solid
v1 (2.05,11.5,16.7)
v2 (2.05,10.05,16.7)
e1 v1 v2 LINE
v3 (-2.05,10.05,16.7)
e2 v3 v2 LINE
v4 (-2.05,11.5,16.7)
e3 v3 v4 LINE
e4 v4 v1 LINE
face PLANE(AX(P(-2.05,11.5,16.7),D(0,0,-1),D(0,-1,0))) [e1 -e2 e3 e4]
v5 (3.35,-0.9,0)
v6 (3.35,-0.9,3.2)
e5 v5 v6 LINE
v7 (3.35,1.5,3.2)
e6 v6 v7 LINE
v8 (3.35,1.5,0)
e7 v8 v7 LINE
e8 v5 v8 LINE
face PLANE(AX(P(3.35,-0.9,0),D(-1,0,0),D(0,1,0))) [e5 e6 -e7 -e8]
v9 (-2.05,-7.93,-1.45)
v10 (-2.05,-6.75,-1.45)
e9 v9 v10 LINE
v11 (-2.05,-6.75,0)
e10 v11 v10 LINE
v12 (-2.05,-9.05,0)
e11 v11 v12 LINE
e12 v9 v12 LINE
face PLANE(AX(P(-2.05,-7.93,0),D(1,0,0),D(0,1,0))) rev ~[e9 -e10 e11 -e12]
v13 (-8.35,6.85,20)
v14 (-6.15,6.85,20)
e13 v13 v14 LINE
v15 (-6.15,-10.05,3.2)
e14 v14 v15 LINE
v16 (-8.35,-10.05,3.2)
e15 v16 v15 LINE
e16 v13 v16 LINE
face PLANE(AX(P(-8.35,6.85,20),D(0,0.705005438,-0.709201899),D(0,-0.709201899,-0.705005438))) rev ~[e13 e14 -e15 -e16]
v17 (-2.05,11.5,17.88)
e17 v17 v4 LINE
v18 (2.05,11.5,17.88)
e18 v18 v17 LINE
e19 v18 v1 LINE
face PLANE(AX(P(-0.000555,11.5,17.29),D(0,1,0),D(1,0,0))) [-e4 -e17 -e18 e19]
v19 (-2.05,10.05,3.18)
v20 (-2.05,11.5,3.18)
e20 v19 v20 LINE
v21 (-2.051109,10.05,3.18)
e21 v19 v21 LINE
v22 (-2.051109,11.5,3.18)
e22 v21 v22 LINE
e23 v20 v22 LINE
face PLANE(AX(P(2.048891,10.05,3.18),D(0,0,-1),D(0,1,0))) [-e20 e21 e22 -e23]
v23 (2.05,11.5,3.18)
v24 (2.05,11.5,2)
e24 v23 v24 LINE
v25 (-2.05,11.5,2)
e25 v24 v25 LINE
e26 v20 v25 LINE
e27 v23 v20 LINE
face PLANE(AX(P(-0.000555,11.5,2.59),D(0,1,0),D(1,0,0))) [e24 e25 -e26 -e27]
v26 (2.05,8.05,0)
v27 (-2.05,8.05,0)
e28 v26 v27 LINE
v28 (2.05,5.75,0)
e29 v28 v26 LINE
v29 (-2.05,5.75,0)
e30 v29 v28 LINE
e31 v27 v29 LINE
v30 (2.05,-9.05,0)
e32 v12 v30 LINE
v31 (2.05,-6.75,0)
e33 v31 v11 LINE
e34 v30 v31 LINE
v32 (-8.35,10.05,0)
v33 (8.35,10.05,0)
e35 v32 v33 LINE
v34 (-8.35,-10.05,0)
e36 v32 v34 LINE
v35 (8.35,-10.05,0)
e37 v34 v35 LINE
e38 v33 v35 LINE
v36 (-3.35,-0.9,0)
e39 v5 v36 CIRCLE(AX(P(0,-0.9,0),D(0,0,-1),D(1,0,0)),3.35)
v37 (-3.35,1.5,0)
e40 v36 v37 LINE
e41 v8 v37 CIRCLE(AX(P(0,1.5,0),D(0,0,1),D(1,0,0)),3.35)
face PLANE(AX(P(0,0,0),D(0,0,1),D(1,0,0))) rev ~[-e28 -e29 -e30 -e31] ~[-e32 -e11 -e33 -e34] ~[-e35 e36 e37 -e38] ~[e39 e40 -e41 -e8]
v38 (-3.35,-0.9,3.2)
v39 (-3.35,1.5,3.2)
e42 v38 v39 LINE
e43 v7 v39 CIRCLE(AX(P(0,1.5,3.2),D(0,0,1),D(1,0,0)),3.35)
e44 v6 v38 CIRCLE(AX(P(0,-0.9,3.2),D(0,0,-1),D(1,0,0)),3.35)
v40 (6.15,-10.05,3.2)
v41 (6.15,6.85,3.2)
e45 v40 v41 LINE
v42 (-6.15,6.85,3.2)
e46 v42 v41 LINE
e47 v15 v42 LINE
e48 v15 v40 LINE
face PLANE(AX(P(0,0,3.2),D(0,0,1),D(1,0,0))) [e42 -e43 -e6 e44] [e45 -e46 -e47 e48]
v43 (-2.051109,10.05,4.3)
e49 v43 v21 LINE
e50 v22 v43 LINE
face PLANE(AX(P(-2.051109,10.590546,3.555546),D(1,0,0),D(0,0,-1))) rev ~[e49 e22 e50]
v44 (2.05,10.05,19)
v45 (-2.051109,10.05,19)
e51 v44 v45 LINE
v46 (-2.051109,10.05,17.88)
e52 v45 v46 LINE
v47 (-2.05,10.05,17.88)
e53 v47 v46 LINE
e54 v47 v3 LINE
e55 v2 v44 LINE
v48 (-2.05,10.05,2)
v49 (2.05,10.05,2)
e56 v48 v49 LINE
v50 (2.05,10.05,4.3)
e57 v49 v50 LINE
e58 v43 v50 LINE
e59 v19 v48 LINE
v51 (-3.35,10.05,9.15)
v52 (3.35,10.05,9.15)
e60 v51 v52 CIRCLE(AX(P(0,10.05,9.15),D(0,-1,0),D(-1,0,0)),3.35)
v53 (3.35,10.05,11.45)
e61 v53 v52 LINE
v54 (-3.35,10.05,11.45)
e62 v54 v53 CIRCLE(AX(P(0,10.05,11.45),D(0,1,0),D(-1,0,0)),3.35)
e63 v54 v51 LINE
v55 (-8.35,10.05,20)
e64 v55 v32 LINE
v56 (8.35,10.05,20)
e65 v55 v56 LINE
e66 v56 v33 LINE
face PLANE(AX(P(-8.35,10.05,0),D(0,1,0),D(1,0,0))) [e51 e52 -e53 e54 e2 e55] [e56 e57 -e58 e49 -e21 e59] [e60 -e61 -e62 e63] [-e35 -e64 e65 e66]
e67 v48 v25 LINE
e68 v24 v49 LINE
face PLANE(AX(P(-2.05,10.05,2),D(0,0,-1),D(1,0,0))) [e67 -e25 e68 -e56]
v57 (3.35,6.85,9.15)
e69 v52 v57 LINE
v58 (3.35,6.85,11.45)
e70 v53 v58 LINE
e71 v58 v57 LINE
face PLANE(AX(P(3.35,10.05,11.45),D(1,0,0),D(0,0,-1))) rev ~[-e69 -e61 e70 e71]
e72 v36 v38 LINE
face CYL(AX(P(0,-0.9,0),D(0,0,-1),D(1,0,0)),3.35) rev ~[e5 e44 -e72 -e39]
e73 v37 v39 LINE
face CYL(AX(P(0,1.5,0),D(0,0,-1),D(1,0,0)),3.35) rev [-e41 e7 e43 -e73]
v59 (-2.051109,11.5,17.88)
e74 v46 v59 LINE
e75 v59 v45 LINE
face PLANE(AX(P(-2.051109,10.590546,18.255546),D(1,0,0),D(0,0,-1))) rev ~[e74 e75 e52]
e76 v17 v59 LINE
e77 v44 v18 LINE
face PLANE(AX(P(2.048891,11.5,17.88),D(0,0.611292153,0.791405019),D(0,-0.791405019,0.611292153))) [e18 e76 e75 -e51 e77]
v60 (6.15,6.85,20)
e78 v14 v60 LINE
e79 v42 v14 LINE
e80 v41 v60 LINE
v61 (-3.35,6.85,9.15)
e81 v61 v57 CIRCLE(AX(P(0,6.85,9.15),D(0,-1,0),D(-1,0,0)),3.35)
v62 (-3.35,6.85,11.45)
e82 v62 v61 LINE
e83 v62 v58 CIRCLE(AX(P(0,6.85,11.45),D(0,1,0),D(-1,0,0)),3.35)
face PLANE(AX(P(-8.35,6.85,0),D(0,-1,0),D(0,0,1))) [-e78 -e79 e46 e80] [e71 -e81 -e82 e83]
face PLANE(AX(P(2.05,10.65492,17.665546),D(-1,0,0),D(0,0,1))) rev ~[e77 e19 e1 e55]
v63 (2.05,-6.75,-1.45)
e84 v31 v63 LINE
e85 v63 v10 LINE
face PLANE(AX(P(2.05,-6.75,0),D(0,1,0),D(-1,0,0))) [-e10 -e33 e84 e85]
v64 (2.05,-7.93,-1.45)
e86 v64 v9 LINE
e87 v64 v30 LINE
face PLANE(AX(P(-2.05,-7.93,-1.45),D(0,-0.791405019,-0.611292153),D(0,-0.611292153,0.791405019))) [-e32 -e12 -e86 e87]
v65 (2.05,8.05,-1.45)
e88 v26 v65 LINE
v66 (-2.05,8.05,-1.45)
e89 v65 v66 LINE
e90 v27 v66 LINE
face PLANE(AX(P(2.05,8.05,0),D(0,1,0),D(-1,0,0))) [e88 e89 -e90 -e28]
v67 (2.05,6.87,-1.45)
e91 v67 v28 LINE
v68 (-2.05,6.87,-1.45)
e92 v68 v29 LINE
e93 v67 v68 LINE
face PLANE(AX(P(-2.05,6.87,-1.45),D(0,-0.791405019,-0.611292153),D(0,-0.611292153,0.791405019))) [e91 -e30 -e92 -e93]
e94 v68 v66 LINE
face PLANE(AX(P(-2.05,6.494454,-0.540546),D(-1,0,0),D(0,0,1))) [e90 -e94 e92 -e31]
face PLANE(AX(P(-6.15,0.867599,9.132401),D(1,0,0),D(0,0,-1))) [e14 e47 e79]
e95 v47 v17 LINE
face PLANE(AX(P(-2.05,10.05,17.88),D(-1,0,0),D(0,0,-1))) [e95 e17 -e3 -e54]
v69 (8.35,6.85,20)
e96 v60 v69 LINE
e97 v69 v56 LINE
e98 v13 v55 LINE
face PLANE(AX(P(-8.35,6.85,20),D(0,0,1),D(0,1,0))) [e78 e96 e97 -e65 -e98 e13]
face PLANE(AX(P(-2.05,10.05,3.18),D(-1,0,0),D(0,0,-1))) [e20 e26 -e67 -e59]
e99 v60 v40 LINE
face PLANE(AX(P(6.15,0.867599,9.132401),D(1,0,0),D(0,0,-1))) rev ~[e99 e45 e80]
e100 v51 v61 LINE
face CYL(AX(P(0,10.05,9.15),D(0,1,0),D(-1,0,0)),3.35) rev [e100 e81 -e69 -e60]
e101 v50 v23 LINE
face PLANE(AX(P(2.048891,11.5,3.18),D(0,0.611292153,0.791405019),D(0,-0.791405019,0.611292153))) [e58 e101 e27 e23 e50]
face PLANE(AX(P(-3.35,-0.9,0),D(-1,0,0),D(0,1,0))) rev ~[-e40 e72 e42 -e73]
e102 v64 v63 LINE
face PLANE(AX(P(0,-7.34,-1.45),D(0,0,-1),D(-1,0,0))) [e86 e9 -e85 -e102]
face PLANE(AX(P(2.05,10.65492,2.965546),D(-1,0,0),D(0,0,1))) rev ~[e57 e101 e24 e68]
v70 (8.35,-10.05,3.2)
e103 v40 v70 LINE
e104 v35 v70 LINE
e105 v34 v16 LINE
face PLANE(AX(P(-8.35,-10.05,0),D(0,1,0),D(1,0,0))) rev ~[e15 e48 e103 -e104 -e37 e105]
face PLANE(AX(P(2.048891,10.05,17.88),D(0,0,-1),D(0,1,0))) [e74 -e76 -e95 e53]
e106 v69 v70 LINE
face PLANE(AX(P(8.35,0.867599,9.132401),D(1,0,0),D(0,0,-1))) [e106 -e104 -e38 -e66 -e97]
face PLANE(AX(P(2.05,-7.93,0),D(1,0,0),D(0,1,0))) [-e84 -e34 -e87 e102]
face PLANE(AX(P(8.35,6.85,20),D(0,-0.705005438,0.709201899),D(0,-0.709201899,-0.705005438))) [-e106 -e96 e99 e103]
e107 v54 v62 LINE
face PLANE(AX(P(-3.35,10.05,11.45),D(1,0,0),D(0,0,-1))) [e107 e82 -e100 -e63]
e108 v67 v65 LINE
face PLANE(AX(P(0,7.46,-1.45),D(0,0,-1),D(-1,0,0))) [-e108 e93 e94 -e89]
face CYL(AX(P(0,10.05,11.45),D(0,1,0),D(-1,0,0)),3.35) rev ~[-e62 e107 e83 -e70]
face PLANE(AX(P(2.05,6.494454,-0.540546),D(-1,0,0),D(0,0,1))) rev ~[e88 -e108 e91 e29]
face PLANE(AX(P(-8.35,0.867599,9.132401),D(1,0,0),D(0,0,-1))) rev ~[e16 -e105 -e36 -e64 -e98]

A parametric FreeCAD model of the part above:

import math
import FreeCAD as App
import Part
import Sketcher

V = App.Vector
Q = App.Units.Quantity


def add_polygon(sketch, points):
    """Adds a closed chain of lines whose ends are joined by coincident constraints."""
    first, n = sketch.GeometryCount, len(points)
    for a, b in zip(points, points[1:] + points[:1]):
        sketch.addGeometry(Part.LineSegment(App.Vector(*a, 0), App.Vector(*b, 0)), False)
    for i in range(n):
        sketch.addConstraint(Sketcher.Constraint("Coincident", first + i, 2, first + (i + 1) % n, 1))

doc = App.newDocument("Part")
body = doc.addObject("PartDesign::Body", "Body")

# Sketch on XY plane
sketch1 = body.newObject("Sketcher::SketchObject", "Sketch")
sketch1.AttachmentSupport = (doc.getObject("XY_Plane"), [""])
sketch1.MapMode = "FlatFace"
add_polygon(sketch1, [(-8, 10), (-8, -10), (8, -10), (8, 10)])  # lines 0-3
sketch1.addConstraint([
    Sketcher.Constraint("Vertical", 0),
    Sketcher.Constraint("Horizontal", 1),
    Sketcher.Constraint("Vertical", 2),
    Sketcher.Constraint("Horizontal", 3),
    Sketcher.Constraint("Symmetric", 0, 2, 2, 2, -1, 1),
    Sketcher.Constraint("DistanceX", 1, 1, 1, 2, Q("16.7 mm")),
    Sketcher.Constraint("DistanceY", 0, 2, 0, 1, Q("20.1 mm")),
])
pad1 = body.newObject("PartDesign::Pad", "Pad")
pad1.Profile = sketch1
pad1.Length = 3.2

# Sketch on YZ plane
sketch2 = body.newObject("Sketcher::SketchObject", "Sketch001")
sketch2.AttachmentSupport = (doc.getObject("YZ_Plane"), [""])
sketch2.MapMode = "FlatFace"
sketch2.AttachmentOffset = App.Placement(V(0, 0, -8.35), App.Rotation())
add_polygon(sketch2, [(10.1, 0), (6.8, 0), (6.8, 20), (10.1, 20)])  # lines 0-3
sketch2.addConstraint([
    Sketcher.Constraint("Horizontal", 0),
    Sketcher.Constraint("Vertical", 1),
    Sketcher.Constraint("Horizontal", 2),
    Sketcher.Constraint("Vertical", 3),
    Sketcher.Constraint("PointOnObject", 0, 2, -1),
    Sketcher.Constraint("DistanceY", 1, 1, 1, 2, Q("20 mm")),
    Sketcher.Constraint("DistanceX", 0, 2, 0, 1, Q("3.2 mm")),
    Sketcher.Constraint("DistanceX", -1, 1, 0, 2, Q("6.85 mm")),
])
pad2 = body.newObject("PartDesign::Pad", "Pad001")
pad2.Profile = sketch2
pad2.Length = 16.7

# Sketch on YZ plane
sketch3 = body.newObject("Sketcher::SketchObject", "Sketch002")
sketch3.AttachmentSupport = (doc.getObject("YZ_Plane"), [""])
sketch3.MapMode = "FlatFace"
sketch3.AttachmentOffset = App.Placement(V(0, 0, -8.35), App.Rotation())
add_polygon(sketch3, [(-10, 3), (7, 20), (7, 3)])  # lines 0-2
sketch3.addConstraint([
    Sketcher.Constraint("Vertical", 1),
    Sketcher.Constraint("Horizontal", 2),
    Sketcher.Constraint("DistanceX", 2, 2, 2, 1, Q("16.9 mm")),
    Sketcher.Constraint("DistanceY", 1, 2, 1, 1, Q("16.8 mm")),
    Sketcher.Constraint("DistanceY", -1, 1, 0, 2, Q("20 mm")),
    Sketcher.Constraint("DistanceX", -1, 1, 0, 2, Q("6.85 mm")),
])
pad3 = body.newObject("PartDesign::Pad", "Pad002")
pad3.Profile = sketch3
pad3.Length = 2.2

# Sketch on YZ plane
sketch4 = body.newObject("Sketcher::SketchObject", "Sketch003")
sketch4.AttachmentSupport = (doc.getObject("YZ_Plane"), [""])
sketch4.MapMode = "FlatFace"
sketch4.AttachmentOffset = App.Placement(V(0, 0, 8.35), App.Rotation())
add_polygon(sketch4, [(7, 20), (-10, 3), (7, 3)])  # lines 0-2
sketch4.addConstraint([
    Sketcher.Constraint("Horizontal", 1),
    Sketcher.Constraint("Vertical", 2),
    Sketcher.Constraint("DistanceX", 1, 1, 1, 2, Q("16.9 mm")),
    Sketcher.Constraint("DistanceY", 2, 1, 2, 2, Q("16.8 mm")),
    Sketcher.Constraint("DistanceY", -1, 1, 2, 2, Q("20 mm")),
    Sketcher.Constraint("DistanceX", 0, 2, -1, 1, Q("10.05 mm")),
])
pad4 = body.newObject("PartDesign::Pad", "Pad003")
pad4.Profile = sketch4
pad4.Length = 2.2
pad4.Reversed = True

# Sketch on XY plane
sketch5 = body.newObject("Sketcher::SketchObject", "Sketch004")
sketch5.AttachmentSupport = (doc.getObject("XY_Plane"), [""])
sketch5.MapMode = "FlatFace"
sketch5.addGeometry([
    Part.ArcOfCircle(Part.Circle(V(0, 1.5, 0), V(0, 0, 1), 3.4), math.radians(0), math.radians(180)),
    Part.LineSegment(V(3.4, 1.5, 0), V(3.4, -0.9, 0)),
    Part.ArcOfCircle(Part.Circle(V(0, -0.9, 0), V(0, 0, 1), 3.4), math.radians(180), math.radians(360)),
    Part.LineSegment(V(-3.4, -0.9, 0), V(-3.4, 1.5, 0)),
], False)
sketch5.addConstraint([
    Sketcher.Constraint("Tangent", 0, 1, 1, 1),
    Sketcher.Constraint("Tangent", 1, 2, 2, 2),
    Sketcher.Constraint("Tangent", 2, 1, 3, 1),
    Sketcher.Constraint("Tangent", 3, 2, 0, 2),
    Sketcher.Constraint("Vertical", 1),
    Sketcher.Constraint("Vertical", 3),
    Sketcher.Constraint("PointOnObject", 0, 3, -2),
    Sketcher.Constraint("Radius", 0, Q("3.35 mm")),
    Sketcher.Constraint("DistanceY", 1, 2, 1, 1, Q("2.4 mm")),
    Sketcher.Constraint("DistanceY", -1, 1, 0, 3, Q("1.5 mm")),
])
pocket1 = body.newObject("PartDesign::Pocket", "Pocket")
pocket1.Profile = sketch5
pocket1.Length = 3.2
pocket1.Reversed = True

# Sketch on XZ plane
sketch6 = body.newObject("Sketcher::SketchObject", "Sketch005")
sketch6.AttachmentSupport = (doc.getObject("XZ_Plane"), [""])
sketch6.MapMode = "FlatFace"
sketch6.AttachmentOffset = App.Placement(V(0, 0, -10.05), App.Rotation())
sketch6.addGeometry([
    Part.ArcOfCircle(Part.Circle(V(0, 9.2, 0), V(0, 0, 1), 3.4), math.radians(180), math.radians(360)),
    Part.LineSegment(V(-3.4, 9.2, 0), V(-3.4, 11.4, 0)),
    Part.ArcOfCircle(Part.Circle(V(0, 11.4, 0), V(0, 0, 1), 3.4), math.radians(0), math.radians(180)),
    Part.LineSegment(V(3.4, 11.4, 0), V(3.4, 9.2, 0)),
], False)
sketch6.addConstraint([
    Sketcher.Constraint("Tangent", 0, 1, 1, 1),
    Sketcher.Constraint("Tangent", 1, 2, 2, 2),
    Sketcher.Constraint("Tangent", 2, 1, 3, 1),
    Sketcher.Constraint("Tangent", 3, 2, 0, 2),
    Sketcher.Constraint("Vertical", 1),
    Sketcher.Constraint("Vertical", 3),
    Sketcher.Constraint("PointOnObject", 0, 3, -2),
    Sketcher.Constraint("Radius", 0, Q("3.35 mm")),
    Sketcher.Constraint("DistanceY", 1, 1, 1, 2, Q("2.3 mm")),
    Sketcher.Constraint("DistanceY", -1, 1, 0, 3, Q("9.15 mm")),
])
pocket2 = body.newObject("PartDesign::Pocket", "Pocket001")
pocket2.Profile = sketch6
pocket2.Length = 3.2
pocket2.Reversed = True

# Sketch on XY plane
sketch7 = body.newObject("Sketcher::SketchObject", "Sketch006")
sketch7.AttachmentSupport = (doc.getObject("XY_Plane"), [""])
sketch7.MapMode = "FlatFace"
add_polygon(sketch7, [(2, 8.1), (2, 6.9), (-2, 6.9), (-2, 8.1)])  # lines 0-3
add_polygon(sketch7, [(2, -6.8), (2, -7.9), (-2, -7.9), (-2, -6.8)])  # lines 4-7
sketch7.addConstraint([
    Sketcher.Constraint("Vertical", 0),
    Sketcher.Constraint("Horizontal", 1),
    Sketcher.Constraint("Vertical", 2),
    Sketcher.Constraint("Horizontal", 3),
    Sketcher.Constraint("Vertical", 4),
    Sketcher.Constraint("Horizontal", 5),
    Sketcher.Constraint("Vertical", 6),
    Sketcher.Constraint("Horizontal", 7),
    Sketcher.Constraint("Vertical", 3, 2, 4, 2),
    Sketcher.Constraint("Vertical", 2, 2, 5, 2),
    Sketcher.Constraint("Equal", 2, 4),
    Sketcher.Constraint("DistanceX", 1, 2, 1, 1, Q("4.1 mm")),
    Sketcher.Constraint("DistanceY", 0, 2, 0, 1, Q("1.18 mm")),
    Sketcher.Constraint("DistanceY", 4, 2, 0, 2, Q("14.8 mm")),
    Sketcher.Constraint("DistanceX", -1, 1, 0, 2, Q("2.05 mm")),
    Sketcher.Constraint("DistanceY", -1, 1, 0, 2, Q("6.87 mm")),
])
pad5 = body.newObject("PartDesign::Pad", "Pad004")
pad5.Profile = sketch7
pad5.Length = 1.45
pad5.Reversed = True

# Sketch on YZ plane
sketch8 = body.newObject("Sketcher::SketchObject", "Sketch007")
sketch8.AttachmentSupport = (doc.getObject("YZ_Plane"), [""])
sketch8.MapMode = "FlatFace"
sketch8.AttachmentOffset = App.Placement(V(0, 0, -2.05), App.Rotation())
add_polygon(sketch8, [(6.9, -1.4), (5.8, 0), (6.9, 0)])  # lines 0-2
add_polygon(sketch8, [(-7.9, -1.4), (-9.1, 0), (-7.9, 0)])  # lines 3-5
sketch8.addConstraint([
    Sketcher.Constraint("Horizontal", 1),
    Sketcher.Constraint("Vertical", 2),
    Sketcher.Constraint("Horizontal", 4),
    Sketcher.Constraint("Vertical", 5),
    Sketcher.Constraint("PointOnObject", 0, 2, -1),
    Sketcher.Constraint("PointOnObject", 3, 2, -1),
    Sketcher.Constraint("Parallel", 0, 3),
    Sketcher.Constraint("Horizontal", 2, 2, 5, 2),
    Sketcher.Constraint("DistanceX", 1, 1, 1, 2, Q("1.12 mm")),
    Sketcher.Constraint("DistanceY", 2, 2, 2, 1, Q("1.45 mm")),
    Sketcher.Constraint("DistanceX", 3, 2, 0, 2, Q("14.8 mm")),
    Sketcher.Constraint("DistanceX", -1, 1, 0, 2, Q("5.75 mm")),
])
pad6 = body.newObject("PartDesign::Pad", "Pad005")
pad6.Profile = sketch8
pad6.Length = 4.1

# Sketch on XZ plane
sketch9 = body.newObject("Sketcher::SketchObject", "Sketch008")
sketch9.AttachmentSupport = (doc.getObject("XZ_Plane"), [""])
sketch9.MapMode = "FlatFace"
sketch9.AttachmentOffset = App.Placement(V(0, 0, -10.05), App.Rotation())
add_polygon(sketch9, [(-2, 2), (-2, 3.2), (2, 3.2), (2, 2)])  # lines 0-3
add_polygon(sketch9, [(-2, 16.7), (-2, 17.9), (2, 17.9), (2, 16.7)])  # lines 4-7
sketch9.addConstraint([
    Sketcher.Constraint("Vertical", 0),
    Sketcher.Constraint("Horizontal", 1),
    Sketcher.Constraint("Vertical", 2),
    Sketcher.Constraint("Horizontal", 3),
    Sketcher.Constraint("Vertical", 4),
    Sketcher.Constraint("Horizontal", 5),
    Sketcher.Constraint("Vertical", 6),
    Sketcher.Constraint("Horizontal", 7),
    Sketcher.Constraint("Vertical", 3, 2, 4, 2),
    Sketcher.Constraint("Vertical", 2, 2, 5, 2),
    Sketcher.Constraint("Equal", 2, 4),
    Sketcher.Constraint("DistanceY", -1, 1, 2, 2, Q("2 mm")),
    Sketcher.Constraint("DistanceY", 0, 1, 0, 2, Q("1.18 mm")),
    Sketcher.Constraint("DistanceY", -1, 1, 6, 2, Q("16.7 mm")),
    Sketcher.Constraint("DistanceX", 0, 2, -1, 1, Q("2.05 mm")),
    Sketcher.Constraint("DistanceX", 1, 1, 1, 2, Q("4.098891 mm")),
])
pad7 = body.newObject("PartDesign::Pad", "Pad006")
pad7.Profile = sketch9
pad7.Length = 1.45
pad7.Reversed = True

# Sketch on YZ plane
sketch10 = body.newObject("Sketcher::SketchObject", "Sketch009")
sketch10.AttachmentSupport = (doc.getObject("YZ_Plane"), [""])
sketch10.MapMode = "FlatFace"
sketch10.AttachmentOffset = App.Placement(V(0, 0, 2.048891), App.Rotation())
add_polygon(sketch10, [(11.5, 17.9), (10.1, 19), (10.1, 17.9)])  # lines 0-2
add_polygon(sketch10, [(11.5, 3.2), (10.1, 4.3), (10.1, 3.2)])  # lines 3-5
sketch10.addConstraint([
    Sketcher.Constraint("Vertical", 1),
    Sketcher.Constraint("Horizontal", 2),
    Sketcher.Constraint("Vertical", 4),
    Sketcher.Constraint("Horizontal", 5),
    Sketcher.Constraint("Parallel", 0, 3),
    Sketcher.Constraint("Vertical", 1, 2, 3, 2),
    Sketcher.Constraint("Vertical", 2, 2, 5, 2),
    Sketcher.Constraint("DistanceY", -1, 1, 0, 2, Q("19 mm")),
    Sketcher.Constraint("DistanceX", 2, 1, 2, 2, Q("1.45 mm")),
    Sketcher.Constraint("DistanceY", 1, 2, 1, 1, Q("1.12 mm")),
    Sketcher.Constraint("DistanceX", -1, 1, 2, 2, Q("11.5 mm")),
    Sketcher.Constraint("DistanceY", -1, 1, 3, 2, Q("4.3 mm")),
])
pad8 = body.newObject("PartDesign::Pad", "Pad007")
pad8.Profile = sketch10
pad8.Length = 4.1
pad8.Reversed = True

# Sketch on YZ plane
sketch11 = body.newObject("Sketcher::SketchObject", "Sketch010")
sketch11.AttachmentSupport = (doc.getObject("YZ_Plane"), [""])
sketch11.MapMode = "FlatFace"
sketch11.AttachmentOffset = App.Placement(V(0, 0, -2.05), App.Rotation())
add_polygon(sketch11, [(11.5, 2), (10.1, 2), (10.1, 4.3), (11.5, 3.2)])  # lines 0-3
add_polygon(sketch11, [(11.5, 16.7), (10.1, 16.7), (10.1, 19), (11.5, 17.9)])  # lines 4-7
sketch11.addConstraint([
    Sketcher.Constraint("Horizontal", 0),
    Sketcher.Constraint("Vertical", 1),
    Sketcher.Constraint("Vertical", 3),
    Sketcher.Constraint("Horizontal", 4),
    Sketcher.Constraint("Vertical", 5),
    Sketcher.Constraint("Vertical", 7),
    Sketcher.Constraint("Parallel", 2, 6),
    Sketcher.Constraint("Vertical", 1, 2, 4, 2),
    Sketcher.Constraint("Vertical", 3, 2, 6, 2),
    Sketcher.Constraint("Equal", 1, 5),
    Sketcher.Constraint("DistanceY", 1, 1, 1, 2, Q("2.3 mm")),
    Sketcher.Constraint("DistanceY", -1, 1, 0, 2, Q("2 mm")),
    Sketcher.Constraint("DistanceY", -1, 1, 5, 2, Q("19 mm")),
    Sketcher.Constraint("DistanceX", 0, 2, 0, 1, Q("1.45 mm")),
    Sketcher.Constraint("DistanceY", 3, 2, 3, 1, Q("1.18 mm")),
    Sketcher.Constraint("DistanceX", -1, 1, 2, 2, Q("11.5 mm")),
])
pad9 = body.newObject("PartDesign::Pad", "Pad008")
pad9.Profile = sketch11
pad9.Length = 4.1

doc.recompute()
